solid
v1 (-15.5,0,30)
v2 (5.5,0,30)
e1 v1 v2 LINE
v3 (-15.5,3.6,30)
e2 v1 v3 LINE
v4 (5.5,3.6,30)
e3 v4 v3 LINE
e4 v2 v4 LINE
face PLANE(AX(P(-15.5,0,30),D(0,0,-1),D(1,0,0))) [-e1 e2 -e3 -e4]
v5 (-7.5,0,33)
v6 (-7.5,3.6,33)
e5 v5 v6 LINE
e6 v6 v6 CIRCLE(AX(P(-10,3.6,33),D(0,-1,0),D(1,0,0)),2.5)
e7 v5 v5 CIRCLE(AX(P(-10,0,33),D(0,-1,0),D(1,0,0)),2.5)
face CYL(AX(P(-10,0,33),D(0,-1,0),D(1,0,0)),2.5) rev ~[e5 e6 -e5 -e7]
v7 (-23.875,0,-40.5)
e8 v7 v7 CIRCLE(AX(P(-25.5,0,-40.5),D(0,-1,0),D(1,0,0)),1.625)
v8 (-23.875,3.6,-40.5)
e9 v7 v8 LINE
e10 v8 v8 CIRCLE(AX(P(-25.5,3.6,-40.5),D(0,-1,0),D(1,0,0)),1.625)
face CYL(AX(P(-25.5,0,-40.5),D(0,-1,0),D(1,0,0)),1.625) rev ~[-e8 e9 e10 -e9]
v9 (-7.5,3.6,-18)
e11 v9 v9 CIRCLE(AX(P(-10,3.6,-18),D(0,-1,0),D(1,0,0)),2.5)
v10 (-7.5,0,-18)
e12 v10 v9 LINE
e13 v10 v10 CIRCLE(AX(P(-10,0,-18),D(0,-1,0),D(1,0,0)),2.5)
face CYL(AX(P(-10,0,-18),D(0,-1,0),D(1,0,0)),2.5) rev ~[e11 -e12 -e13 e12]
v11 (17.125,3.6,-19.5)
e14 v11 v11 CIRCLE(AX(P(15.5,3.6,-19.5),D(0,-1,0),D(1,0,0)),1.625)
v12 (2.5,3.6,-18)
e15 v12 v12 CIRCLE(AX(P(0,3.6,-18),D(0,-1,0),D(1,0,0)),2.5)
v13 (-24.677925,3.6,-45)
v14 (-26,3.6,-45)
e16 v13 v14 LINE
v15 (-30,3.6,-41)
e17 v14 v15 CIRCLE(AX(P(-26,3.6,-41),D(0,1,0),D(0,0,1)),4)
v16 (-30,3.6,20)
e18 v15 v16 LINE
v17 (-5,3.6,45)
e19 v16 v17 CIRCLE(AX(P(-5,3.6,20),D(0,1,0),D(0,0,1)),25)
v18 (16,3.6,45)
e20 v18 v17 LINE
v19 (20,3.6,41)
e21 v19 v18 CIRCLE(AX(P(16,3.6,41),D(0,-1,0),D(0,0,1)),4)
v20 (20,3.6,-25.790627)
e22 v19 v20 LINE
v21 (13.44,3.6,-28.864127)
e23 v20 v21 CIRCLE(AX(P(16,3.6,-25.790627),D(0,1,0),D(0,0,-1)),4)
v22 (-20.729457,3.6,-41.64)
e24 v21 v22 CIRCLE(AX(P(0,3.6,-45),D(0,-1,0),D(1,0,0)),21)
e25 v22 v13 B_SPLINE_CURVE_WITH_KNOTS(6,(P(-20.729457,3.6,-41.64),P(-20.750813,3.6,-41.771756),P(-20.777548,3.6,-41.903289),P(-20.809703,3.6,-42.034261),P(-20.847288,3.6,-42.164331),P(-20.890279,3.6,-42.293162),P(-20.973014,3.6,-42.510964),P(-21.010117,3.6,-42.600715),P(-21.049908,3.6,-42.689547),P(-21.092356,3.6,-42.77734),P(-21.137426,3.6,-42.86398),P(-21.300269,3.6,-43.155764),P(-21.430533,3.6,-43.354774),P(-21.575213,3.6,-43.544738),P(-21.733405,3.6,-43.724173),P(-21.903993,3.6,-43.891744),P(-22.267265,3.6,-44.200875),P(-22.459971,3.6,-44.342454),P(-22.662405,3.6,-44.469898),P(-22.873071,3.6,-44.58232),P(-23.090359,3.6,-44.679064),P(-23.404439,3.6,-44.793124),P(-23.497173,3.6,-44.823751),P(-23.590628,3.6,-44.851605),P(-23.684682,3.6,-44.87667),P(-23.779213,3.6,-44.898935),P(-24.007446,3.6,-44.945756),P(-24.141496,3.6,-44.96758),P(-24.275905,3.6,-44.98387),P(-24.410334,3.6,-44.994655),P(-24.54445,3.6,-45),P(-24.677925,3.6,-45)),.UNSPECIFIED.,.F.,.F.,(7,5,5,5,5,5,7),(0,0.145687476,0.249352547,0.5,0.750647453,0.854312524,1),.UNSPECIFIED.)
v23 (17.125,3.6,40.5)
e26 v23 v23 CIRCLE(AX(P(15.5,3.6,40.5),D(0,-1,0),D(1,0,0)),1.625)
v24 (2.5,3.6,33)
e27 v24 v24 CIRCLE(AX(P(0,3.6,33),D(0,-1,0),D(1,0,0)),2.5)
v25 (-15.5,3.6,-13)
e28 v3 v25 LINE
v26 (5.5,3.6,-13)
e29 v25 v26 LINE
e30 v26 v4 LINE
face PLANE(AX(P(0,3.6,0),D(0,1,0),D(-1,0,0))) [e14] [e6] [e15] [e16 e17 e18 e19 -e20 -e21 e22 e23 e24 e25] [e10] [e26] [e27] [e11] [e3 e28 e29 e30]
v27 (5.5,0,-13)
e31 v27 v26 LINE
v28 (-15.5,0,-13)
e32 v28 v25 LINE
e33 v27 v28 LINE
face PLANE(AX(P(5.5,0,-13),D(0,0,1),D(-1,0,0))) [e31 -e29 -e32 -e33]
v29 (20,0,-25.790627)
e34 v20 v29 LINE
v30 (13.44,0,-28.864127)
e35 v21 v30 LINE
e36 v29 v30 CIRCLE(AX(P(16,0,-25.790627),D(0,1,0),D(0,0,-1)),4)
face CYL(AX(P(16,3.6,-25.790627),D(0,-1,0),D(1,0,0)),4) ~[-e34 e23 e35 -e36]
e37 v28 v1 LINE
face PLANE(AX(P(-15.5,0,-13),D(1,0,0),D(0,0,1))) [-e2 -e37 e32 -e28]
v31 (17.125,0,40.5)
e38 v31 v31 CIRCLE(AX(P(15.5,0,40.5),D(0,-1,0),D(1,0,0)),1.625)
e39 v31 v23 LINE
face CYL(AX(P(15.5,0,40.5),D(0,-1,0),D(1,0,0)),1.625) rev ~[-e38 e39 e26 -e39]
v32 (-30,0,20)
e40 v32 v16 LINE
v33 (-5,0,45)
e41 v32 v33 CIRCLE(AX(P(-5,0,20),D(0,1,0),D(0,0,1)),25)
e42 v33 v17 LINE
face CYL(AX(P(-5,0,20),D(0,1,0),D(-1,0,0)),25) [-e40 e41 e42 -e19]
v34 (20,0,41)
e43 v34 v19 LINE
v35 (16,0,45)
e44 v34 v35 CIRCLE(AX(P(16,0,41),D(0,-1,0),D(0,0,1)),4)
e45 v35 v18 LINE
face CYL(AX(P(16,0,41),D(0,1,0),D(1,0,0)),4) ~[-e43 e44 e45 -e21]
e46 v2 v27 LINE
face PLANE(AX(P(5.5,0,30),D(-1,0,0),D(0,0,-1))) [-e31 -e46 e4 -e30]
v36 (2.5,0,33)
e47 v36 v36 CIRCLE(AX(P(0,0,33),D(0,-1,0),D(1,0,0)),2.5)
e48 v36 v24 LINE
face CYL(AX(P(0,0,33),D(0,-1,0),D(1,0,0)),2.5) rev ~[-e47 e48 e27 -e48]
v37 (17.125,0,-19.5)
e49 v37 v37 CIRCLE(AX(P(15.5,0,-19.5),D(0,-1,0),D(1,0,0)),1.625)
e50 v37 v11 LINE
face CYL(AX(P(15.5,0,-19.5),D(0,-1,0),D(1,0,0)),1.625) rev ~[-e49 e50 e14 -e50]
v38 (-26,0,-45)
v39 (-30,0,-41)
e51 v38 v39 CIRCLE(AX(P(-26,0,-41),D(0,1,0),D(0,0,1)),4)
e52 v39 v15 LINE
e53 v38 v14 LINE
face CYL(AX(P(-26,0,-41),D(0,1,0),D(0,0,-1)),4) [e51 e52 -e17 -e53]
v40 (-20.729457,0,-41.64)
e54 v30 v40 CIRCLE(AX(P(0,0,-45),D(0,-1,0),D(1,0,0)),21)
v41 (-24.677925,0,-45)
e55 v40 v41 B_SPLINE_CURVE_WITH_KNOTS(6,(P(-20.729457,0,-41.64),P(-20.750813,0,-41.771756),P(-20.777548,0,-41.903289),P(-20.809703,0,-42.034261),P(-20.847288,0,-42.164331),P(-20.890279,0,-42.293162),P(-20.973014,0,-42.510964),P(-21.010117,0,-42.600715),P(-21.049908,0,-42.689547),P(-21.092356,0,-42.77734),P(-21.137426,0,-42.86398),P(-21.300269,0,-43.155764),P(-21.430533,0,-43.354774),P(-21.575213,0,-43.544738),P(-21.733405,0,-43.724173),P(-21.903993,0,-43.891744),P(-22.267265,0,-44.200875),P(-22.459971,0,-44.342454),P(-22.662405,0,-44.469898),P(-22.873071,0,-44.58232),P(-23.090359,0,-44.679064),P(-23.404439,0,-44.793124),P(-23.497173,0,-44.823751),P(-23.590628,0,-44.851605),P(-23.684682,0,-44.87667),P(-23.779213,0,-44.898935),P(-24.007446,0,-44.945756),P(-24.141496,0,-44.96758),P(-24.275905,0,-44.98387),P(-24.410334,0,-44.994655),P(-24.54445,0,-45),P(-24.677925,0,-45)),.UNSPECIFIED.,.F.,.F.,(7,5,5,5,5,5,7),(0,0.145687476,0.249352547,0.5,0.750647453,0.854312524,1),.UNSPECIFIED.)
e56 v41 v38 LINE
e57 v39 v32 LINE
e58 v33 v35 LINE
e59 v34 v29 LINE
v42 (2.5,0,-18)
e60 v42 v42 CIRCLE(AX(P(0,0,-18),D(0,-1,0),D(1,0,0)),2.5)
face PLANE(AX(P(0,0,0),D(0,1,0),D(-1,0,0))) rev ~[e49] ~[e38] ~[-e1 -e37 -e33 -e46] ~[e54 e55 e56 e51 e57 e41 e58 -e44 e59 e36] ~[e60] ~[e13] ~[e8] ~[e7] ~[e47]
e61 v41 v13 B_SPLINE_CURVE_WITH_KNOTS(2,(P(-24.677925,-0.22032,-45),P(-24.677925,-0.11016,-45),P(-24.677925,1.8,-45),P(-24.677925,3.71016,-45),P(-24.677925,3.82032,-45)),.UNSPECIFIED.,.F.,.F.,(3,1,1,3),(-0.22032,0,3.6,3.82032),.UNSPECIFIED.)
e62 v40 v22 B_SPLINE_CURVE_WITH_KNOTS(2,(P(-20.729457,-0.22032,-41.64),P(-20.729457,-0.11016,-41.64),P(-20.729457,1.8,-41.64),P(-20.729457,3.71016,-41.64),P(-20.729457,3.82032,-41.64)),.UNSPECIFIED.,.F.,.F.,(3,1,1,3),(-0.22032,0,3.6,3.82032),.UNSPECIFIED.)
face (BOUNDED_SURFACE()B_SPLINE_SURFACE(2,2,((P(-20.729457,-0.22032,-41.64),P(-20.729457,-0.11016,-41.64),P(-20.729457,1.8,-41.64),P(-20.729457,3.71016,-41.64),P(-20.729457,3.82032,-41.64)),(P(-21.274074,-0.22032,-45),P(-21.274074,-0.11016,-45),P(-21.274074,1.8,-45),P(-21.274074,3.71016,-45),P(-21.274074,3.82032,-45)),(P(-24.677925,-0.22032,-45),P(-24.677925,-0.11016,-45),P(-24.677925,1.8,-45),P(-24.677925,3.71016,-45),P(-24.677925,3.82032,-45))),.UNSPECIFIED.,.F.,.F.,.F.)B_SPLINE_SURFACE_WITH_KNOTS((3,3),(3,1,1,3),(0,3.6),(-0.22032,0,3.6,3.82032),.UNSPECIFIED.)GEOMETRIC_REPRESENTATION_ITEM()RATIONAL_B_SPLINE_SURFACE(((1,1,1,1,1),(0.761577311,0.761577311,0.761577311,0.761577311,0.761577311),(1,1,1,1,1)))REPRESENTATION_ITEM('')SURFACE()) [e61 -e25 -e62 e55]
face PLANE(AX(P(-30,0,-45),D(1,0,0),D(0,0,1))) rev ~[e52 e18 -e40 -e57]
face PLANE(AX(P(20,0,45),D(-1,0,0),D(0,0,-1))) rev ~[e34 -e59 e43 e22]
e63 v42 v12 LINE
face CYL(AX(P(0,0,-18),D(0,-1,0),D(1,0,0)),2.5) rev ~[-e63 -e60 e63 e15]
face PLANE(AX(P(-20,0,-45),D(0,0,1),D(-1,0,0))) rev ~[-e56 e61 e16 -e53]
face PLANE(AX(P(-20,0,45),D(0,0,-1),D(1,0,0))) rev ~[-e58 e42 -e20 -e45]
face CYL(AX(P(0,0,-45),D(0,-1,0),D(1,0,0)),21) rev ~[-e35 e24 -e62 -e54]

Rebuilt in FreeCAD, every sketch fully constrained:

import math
import FreeCAD as App
import Part
import Sketcher
from FreeCAD import Vector
Q = App.Units.Quantity


def edges_at(feature, points):
    """Names of the edges that pass closest to the given points."""
    edges = feature.Shape.Edges
    near = lambda p: min(range(len(edges)), key=lambda i: edges[i].distToShape(Part.Vertex(*p))[0])
    return sorted({f"Edge{near(p) + 1}" for p in points})


def add_polygon(sketch, points):
    """Adds a closed chain of lines whose ends are joined by coincident constraints."""
    first, n = sketch.GeometryCount, len(points)
    for a, b in zip(points, points[1:] + points[:1]):
        sketch.addGeometry(Part.LineSegment(App.Vector(*a, 0), App.Vector(*b, 0)), False)
    for i in range(n):
        sketch.addConstraint(Sketcher.Constraint("Coincident", first + i, 2, first + (i + 1) % n, 1))

doc = App.newDocument("Part")
body = doc.addObject("PartDesign::Body", "Body")

sketch1 = body.newObject("Sketcher::SketchObject", "Sketch")
sketch1.AttachmentSupport = (doc.getObject("XZ_Plane"), [""])
sketch1.MapMode = "FlatFace"
sketch1.addGeometry(Part.LineSegment(Vector(20, 45, 0), Vector(20, -45, 0)), False)
sketch1.addGeometry(Part.ArcOfCircle(Part.Circle(Vector(0, -45, 0), Vector(0, 0, 1), 20), math.radians(180), math.radians(360)), False)
sketch1.addGeometry(Part.LineSegment(Vector(-20, -45, 0), Vector(-30, -45, 0)), False)
sketch1.addGeometry(Part.LineSegment(Vector(-30, -45, 0), Vector(-30, 45, 0)), False)
sketch1.addGeometry(Part.LineSegment(Vector(-30, 45, 0), Vector(20, 45, 0)), False)
sketch1.addConstraint(Sketcher.Constraint("Tangent", 0, 2, 1, 2))
sketch1.addConstraint(Sketcher.Constraint("Coincident", 1, 1, 2, 1))
sketch1.addConstraint(Sketcher.Constraint("Coincident", 2, 2, 3, 1))
sketch1.addConstraint(Sketcher.Constraint("Coincident", 3, 2, 4, 1))
sketch1.addConstraint(Sketcher.Constraint("Coincident", 4, 2, 0, 1))
sketch1.addConstraint(Sketcher.Constraint("Vertical", 0))
sketch1.addConstraint(Sketcher.Constraint("Horizontal", 2))
sketch1.addConstraint(Sketcher.Constraint("Vertical", 3))
sketch1.addConstraint(Sketcher.Constraint("Horizontal", 4))
sketch1.addConstraint(Sketcher.Constraint("Symmetric", 1, 1, 4, 2, -1, 1))
sketch1.addConstraint(Sketcher.Constraint("Horizontal", 0, 2, 1, 1))
sketch1.addConstraint(Sketcher.Constraint("Radius", 1, Q("20 mm")))
sketch1.addConstraint(Sketcher.Constraint("DistanceX", 2, 2, 2, 1, Q("10 mm")))
sketch1.addConstraint(Sketcher.Constraint("DistanceY", 0, 2, 0, 1, Q("90 mm")))
pad1 = body.newObject("PartDesign::Pad", "Pad")
pad1.Profile = sketch1
pad1.Length = 3.6
pad1.Reversed = True
doc.recompute()

fillet = body.newObject("PartDesign::Fillet", "Fillet")
fillet.Base = (pad1, edges_at(pad1, [(-20, 1.8, -45), (-30, 1.8, -45), (20, 1.8, 45)]))
fillet.Radius = 4

sketch2 = body.newObject("Sketcher::SketchObject", "Sketch001")
sketch2.AttachmentSupport = (doc.getObject("XZ_Plane"), [""])
sketch2.MapMode = "FlatFace"
sketch2.addGeometry(Part.Circle(Vector(0, -45, 0), Vector(0, 0, 1), 21), False)
sketch2.addConstraint(Sketcher.Constraint("PointOnObject", 0, 3, -2))
sketch2.addConstraint(Sketcher.Constraint("Diameter", 0, Q("42 mm")))
sketch2.addConstraint(Sketcher.Constraint("DistanceY", 0, 3, -1, 1, Q("45 mm")))
pocket1 = body.newObject("PartDesign::Pocket", "Pocket")
pocket1.Profile = sketch2
pocket1.Length = 10
doc.recompute()

fillet2 = body.newObject("PartDesign::Fillet", "Fillet001")
fillet2.Base = (pocket1, edges_at(pocket1, [(20, 1.8, -38.597), (-20.974, 1.8, -46.04)]))
fillet2.Radius = 4

sketch3 = body.newObject("Sketcher::SketchObject", "Sketch002")
sketch3.AttachmentSupport = (doc.getObject("XZ_Plane"), [""])
sketch3.MapMode = "FlatFace"
sketch3.addGeometry(Part.Circle(Vector(-25.5, -40.5, 0), Vector(0, 0, 1), 1.625), False)
sketch3.addGeometry(Part.Circle(Vector(15.5, -19.5, 0), Vector(0, 0, 1), 1.625), False)
sketch3.addGeometry(Part.Circle(Vector(15.5, 40.5, 0), Vector(0, 0, 1), 1.625), False)
sketch3.addConstraint(Sketcher.Constraint("Equal", 0, 1))
sketch3.addConstraint(Sketcher.Constraint("Equal", 1, 2))
sketch3.addConstraint(Sketcher.Constraint("Vertical", 1, 3, 2, 3))
sketch3.addConstraint(Sketcher.Constraint("Diameter", 0, Q("3.25 mm")))
sketch3.addConstraint(Sketcher.Constraint("DistanceY", 1, 3, 2, 3, Q("60 mm")))
sketch3.addConstraint(Sketcher.Constraint("DistanceX", 0, 3, 1, 3, Q("41 mm")))
sketch3.addConstraint(Sketcher.Constraint("DistanceY", 0, 3, 1, 3, Q("21 mm")))
sketch3.addConstraint(Sketcher.Constraint("DistanceX", 0, 3, -1, 1, Q("25.5 mm")))
sketch3.addConstraint(Sketcher.Constraint("DistanceY", 0, 3, -1, 1, Q("40.5 mm")))
pocket2 = body.newObject("PartDesign::Pocket", "Pocket001")
pocket2.Profile = sketch3
pocket2.Length = 7

sketch4 = body.newObject("Sketcher::SketchObject", "Sketch003")
sketch4.AttachmentSupport = (doc.getObject("XZ_Plane"), [""])
sketch4.MapMode = "FlatFace"
add_polygon(sketch4, [(5.5, 30), (-15.5, 30), (-15.5, -13), (5.5, -13)])
sketch4.addConstraint(Sketcher.Constraint("Horizontal", 0))
sketch4.addConstraint(Sketcher.Constraint("Vertical", 1))
sketch4.addConstraint(Sketcher.Constraint("Horizontal", 2))
sketch4.addConstraint(Sketcher.Constraint("Vertical", 3))
sketch4.addConstraint(Sketcher.Constraint("DistanceX", 0, 2, 0, 1, Q("21 mm")))
sketch4.addConstraint(Sketcher.Constraint("DistanceY", 1, 2, 1, 1, Q("43 mm")))
sketch4.addConstraint(Sketcher.Constraint("DistanceY", -1, 1, 0, 2, Q("30 mm")))
sketch4.addConstraint(Sketcher.Constraint("DistanceX", 0, 2, -1, 1, Q("15.5 mm")))
pocket3 = body.newObject("PartDesign::Pocket", "Pocket002")
pocket3.Profile = sketch4
pocket3.Length = 10

sketch5 = body.newObject("Sketcher::SketchObject", "Sketch004")
sketch5.AttachmentSupport = (doc.getObject("XZ_Plane"), [""])
sketch5.MapMode = "FlatFace"
sketch5.addGeometry(Part.Circle(Vector(0, -18, 0), Vector(0, 0, 1), 2.5), False)
sketch5.addGeometry(Part.Circle(Vector(0, 33, 0), Vector(0, 0, 1), 2.5), False)
sketch5.addGeometry(Part.Circle(Vector(-10, -18, 0), Vector(0, 0, 1), 2.5), False)
sketch5.addGeometry(Part.Circle(Vector(-10, 33, 0), Vector(0, 0, 1), 2.5), False)
sketch5.addConstraint(Sketcher.Constraint("Equal", 0, 1))
sketch5.addConstraint(Sketcher.Constraint("Equal", 1, 2))
sketch5.addConstraint(Sketcher.Constraint("Equal", 2, 3))
sketch5.addConstraint(Sketcher.Constraint("PointOnObject", 0, 3, -2))
sketch5.addConstraint(Sketcher.Constraint("PointOnObject", 1, 3, -2))
sketch5.addConstraint(Sketcher.Constraint("Horizontal", 0, 3, 2, 3))
sketch5.addConstraint(Sketcher.Constraint("Horizontal", 1, 3, 3, 3))
sketch5.addConstraint(Sketcher.Constraint("Vertical", 2, 3, 3, 3))
sketch5.addConstraint(Sketcher.Constraint("Diameter", 0, Q("5 mm")))
sketch5.addConstraint(Sketcher.Constraint("DistanceX", 2, 3, -1, 1, Q("10 mm")))
sketch5.addConstraint(Sketcher.Constraint("DistanceY", 0, 3, 1, 3, Q("51 mm")))
sketch5.addConstraint(Sketcher.Constraint("DistanceY", 0, 3, -1, 1, Q("18 mm")))
pocket4 = body.newObject("PartDesign::Pocket", "Pocket003")
pocket4.Profile = sketch5
pocket4.Length = 10
doc.recompute()

fillet3 = body.newObject("PartDesign::Fillet", "Fillet002")
fillet3.Base = (pocket4, edges_at(pocket4, [(-30, 1.8, 45)]))
fillet3.Radius = 25

doc.recompute()
